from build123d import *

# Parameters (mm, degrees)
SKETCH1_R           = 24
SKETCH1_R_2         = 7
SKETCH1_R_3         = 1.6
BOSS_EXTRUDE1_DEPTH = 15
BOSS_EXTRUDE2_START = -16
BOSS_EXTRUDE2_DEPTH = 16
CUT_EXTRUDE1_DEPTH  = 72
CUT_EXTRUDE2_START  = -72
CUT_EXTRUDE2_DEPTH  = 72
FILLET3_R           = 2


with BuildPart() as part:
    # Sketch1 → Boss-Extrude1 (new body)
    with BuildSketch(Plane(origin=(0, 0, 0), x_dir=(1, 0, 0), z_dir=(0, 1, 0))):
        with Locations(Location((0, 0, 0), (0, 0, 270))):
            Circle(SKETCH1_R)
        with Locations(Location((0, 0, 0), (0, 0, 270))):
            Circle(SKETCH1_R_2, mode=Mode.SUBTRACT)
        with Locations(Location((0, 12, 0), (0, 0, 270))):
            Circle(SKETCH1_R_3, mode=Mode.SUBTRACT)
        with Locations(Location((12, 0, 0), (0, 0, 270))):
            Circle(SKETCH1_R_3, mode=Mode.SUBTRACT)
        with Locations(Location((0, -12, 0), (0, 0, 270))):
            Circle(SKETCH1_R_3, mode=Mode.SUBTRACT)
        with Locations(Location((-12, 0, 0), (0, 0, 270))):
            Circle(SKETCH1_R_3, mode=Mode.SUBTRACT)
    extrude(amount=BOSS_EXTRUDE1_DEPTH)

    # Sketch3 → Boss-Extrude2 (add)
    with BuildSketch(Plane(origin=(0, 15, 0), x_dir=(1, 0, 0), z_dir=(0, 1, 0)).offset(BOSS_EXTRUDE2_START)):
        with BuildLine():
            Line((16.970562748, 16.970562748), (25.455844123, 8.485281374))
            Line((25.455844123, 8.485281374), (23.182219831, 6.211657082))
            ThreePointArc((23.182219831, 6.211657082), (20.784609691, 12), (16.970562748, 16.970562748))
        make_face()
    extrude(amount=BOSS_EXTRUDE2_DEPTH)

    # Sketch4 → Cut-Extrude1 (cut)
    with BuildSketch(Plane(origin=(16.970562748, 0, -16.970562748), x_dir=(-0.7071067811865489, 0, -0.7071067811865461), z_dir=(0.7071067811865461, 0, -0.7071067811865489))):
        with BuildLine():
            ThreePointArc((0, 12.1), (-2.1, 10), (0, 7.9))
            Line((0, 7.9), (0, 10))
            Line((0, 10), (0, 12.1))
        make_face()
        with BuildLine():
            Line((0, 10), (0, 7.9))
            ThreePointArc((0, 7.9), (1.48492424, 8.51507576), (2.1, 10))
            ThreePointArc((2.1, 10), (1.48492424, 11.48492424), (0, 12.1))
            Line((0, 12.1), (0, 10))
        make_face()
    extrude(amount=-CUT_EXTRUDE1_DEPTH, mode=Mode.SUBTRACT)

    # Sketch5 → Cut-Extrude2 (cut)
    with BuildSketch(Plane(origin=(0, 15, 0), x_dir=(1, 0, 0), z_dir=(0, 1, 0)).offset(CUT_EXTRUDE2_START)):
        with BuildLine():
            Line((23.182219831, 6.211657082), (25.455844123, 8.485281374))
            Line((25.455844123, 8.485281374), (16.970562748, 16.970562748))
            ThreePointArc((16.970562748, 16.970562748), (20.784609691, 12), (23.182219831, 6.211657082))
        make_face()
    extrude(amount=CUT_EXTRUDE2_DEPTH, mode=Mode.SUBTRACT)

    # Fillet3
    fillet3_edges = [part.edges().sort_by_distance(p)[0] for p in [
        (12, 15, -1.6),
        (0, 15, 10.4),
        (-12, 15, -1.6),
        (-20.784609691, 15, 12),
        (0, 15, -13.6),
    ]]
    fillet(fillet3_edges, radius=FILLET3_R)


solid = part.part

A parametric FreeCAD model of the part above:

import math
import FreeCAD as App
import Part
import Sketcher
Q = App.Units.Quantity


def edges_at(feature, points):
    """Names of the edges that pass closest to the given points."""
    edges = feature.Shape.Edges
    near = lambda p: min(range(len(edges)), key=lambda i: edges[i].distToShape(Part.Vertex(*p))[0])
    return sorted({f"Edge{near(p) + 1}" for p in points})

doc = App.newDocument("Part")
params = doc.addObject("Spreadsheet::Sheet", "Params")
for row, (alias, value) in enumerate([
    ("sketch1_diameter", "48 mm"),
    ("sketch1_diameter2", "14 mm"),
    ("sketch1_diameter3", "3.2 mm"),
    ("pad1_length", "15 mm"),
    ("sketch2_radius", "24 mm"),
    ("sketch2_length", "12 mm"),
    ("pad2_length", "16 mm"),
    ("sketch3_radius", "2.1 mm"),
    ("pocket1_length", "72 mm"),
    ("sketch4_radius", "24 mm"),
    ("sketch4_length", "12 mm"),
    ("pocket2_length", "72 mm"),
    ("fillet_radius", "2 mm"),
], start=1):
    params.set(f"A{row}", alias)
    params.set(f"B{row}", "=" + value)
    params.setAlias(f"B{row}", alias)

body = doc.addObject("PartDesign::Body", "Body")

sketch1 = body.newObject("Sketcher::SketchObject", "Sketch")
sketch1.AttachmentSupport = (doc.getObject("XZ_Plane"), [""])
sketch1.MapMode = "FlatFace"
sketch1.addGeometry(Part.Circle(App.Vector(0, 0, 0), App.Vector(0, 0, 1), 24), False)
sketch1.addGeometry(Part.Circle(App.Vector(0, -12, 0), App.Vector(0, 0, 1), 1.6), False)
sketch1.addGeometry(Part.Circle(App.Vector(-12, 0, 0), App.Vector(0, 0, 1), 1.6), False)
sketch1.addGeometry(Part.Circle(App.Vector(12, 0, 0), App.Vector(0, 0, 1), 1.6), False)
sketch1.addGeometry(Part.Circle(App.Vector(0, 0, 0), App.Vector(0, 0, 1), 7), False)
sketch1.addGeometry(Part.Circle(App.Vector(0, 12, 0), App.Vector(0, 0, 1), 1.6), False)
sketch1.addConstraint(Sketcher.Constraint("Coincident", 0, 3, -1, 1))
sketch1.addConstraint(Sketcher.Constraint("Coincident", 4, 3, -1, 1))
sketch1.addConstraint(Sketcher.Constraint("Equal", 1, 2))
sketch1.addConstraint(Sketcher.Constraint("Equal", 2, 3))
sketch1.addConstraint(Sketcher.Constraint("Equal", 3, 5))
sketch1.addConstraint(Sketcher.Constraint("Symmetric", 2, 3, 3, 3, -1, 1))
sketch1.addConstraint(Sketcher.Constraint("Symmetric", 1, 3, 5, 3, -1, 1))
sketch1.addConstraint(Sketcher.Constraint("PointOnObject", 1, 3, -2))
sketch1.addConstraint(Sketcher.Constraint("PointOnObject", 2, 3, -1))
sketch1.addConstraint(Sketcher.Constraint("Diameter", 0, Q("48 mm")))
sketch1.addConstraint(Sketcher.Constraint("Diameter", 4, Q("14 mm")))
sketch1.addConstraint(Sketcher.Constraint("Diameter", 1, Q("3.2 mm")))
sketch1.addConstraint(Sketcher.Constraint("DistanceY", 1, 3, -1, 1, Q("12 mm")))
sketch1.addConstraint(Sketcher.Constraint("DistanceX", 2, 3, -1, 1, Q("12 mm")))
sketch1.setExpression("Constraints[9]", "Params.sketch1_diameter")
sketch1.setExpression("Constraints[10]", "Params.sketch1_diameter2")
sketch1.setExpression("Constraints[11]", "Params.sketch1_diameter3")
pad1 = body.newObject("PartDesign::Pad", "Pad")
pad1.Profile = sketch1
pad1.setExpression("Length", "Params.pad1_length")
pad1.Reversed = True

sketch2 = body.newObject("Sketcher::SketchObject", "Sketch001")
sketch2.AttachmentSupport = (doc.getObject("XZ_Plane"), [""])
sketch2.MapMode = "FlatFace"
sketch2.AttachmentOffset = App.Placement(App.Vector(0, 0, 1), App.Rotation())
sketch2.addGeometry(Part.LineSegment(App.Vector(25.455844, -8.485281, 0), App.Vector(16.970563, -16.970563, 0)), False)
sketch2.addGeometry(Part.ArcOfCircle(Part.Circle(App.Vector(0, 0, 0), App.Vector(0, 0, 1), 24), math.radians(-45), math.radians(-15)), False)
sketch2.addGeometry(Part.LineSegment(App.Vector(23.18222, -6.211657, 0), App.Vector(25.455844, -8.485281, 0)), False)
sketch2.addConstraint(Sketcher.Constraint("Tangent", 0, 2, 1, 1))
sketch2.addConstraint(Sketcher.Constraint("Coincident", 1, 2, 2, 1))
sketch2.addConstraint(Sketcher.Constraint("Coincident", 2, 2, 0, 1))
sketch2.addConstraint(Sketcher.Constraint("Coincident", 1, 3, -1, 1))
sketch2.addConstraint(Sketcher.Constraint("Perpendicular", 0, 2))
sketch2.addConstraint(Sketcher.Constraint("Radius", 1, Q("24 mm")))
sketch2.addConstraint(Sketcher.Constraint("Angle", 0, Q("-135 deg")))
sketch2.addConstraint(Sketcher.Constraint("Distance", 0, Q("12 mm")))
sketch2.setExpression("Constraints[5]", "Params.sketch2_radius")
sketch2.setExpression("Constraints[7]", "Params.sketch2_length")
pad2 = body.newObject("PartDesign::Pad", "Pad001")
pad2.Profile = sketch2
pad2.setExpression("Length", "Params.pad2_length")
pad2.Reversed = True

sketch3 = body.newObject("Sketcher::SketchObject", "Sketch002")
sketch3.Placement = App.Placement(App.Vector(16.970563, 0, -16.970563), App.Rotation(App.Vector(-0.707106781, 0, -0.707106781), App.Vector(0, 0.999999999, 0), App.Vector(0.707106781, 0, -0.707106781), "ZXY"))
sketch3.addGeometry(Part.ArcOfCircle(Part.Circle(App.Vector(0, 10, 0), App.Vector(0, 0, 1), 2.1), math.radians(90), math.radians(270)), False)
sketch3.addGeometry(Part.ArcOfCircle(Part.Circle(App.Vector(0, 10, 0), App.Vector(0, 0, 1), 2.1), math.radians(-90), math.radians(0)), False)
sketch3.addGeometry(Part.ArcOfCircle(Part.Circle(App.Vector(0, 10, 0), App.Vector(0, 0, 1), 2.1), math.radians(0), math.radians(90)), False)
sketch3.addConstraint(Sketcher.Constraint("Tangent", 0, 2, 1, 1))
sketch3.addConstraint(Sketcher.Constraint("Tangent", 1, 2, 2, 1))
sketch3.addConstraint(Sketcher.Constraint("Tangent", 2, 2, 0, 1))
sketch3.addConstraint(Sketcher.Constraint("PointOnObject", 0, 3, -2))
sketch3.addConstraint(Sketcher.Constraint("PointOnObject", 0, 2, -2))
sketch3.addConstraint(Sketcher.Constraint("PointOnObject", 2, 2, -2))
sketch3.addConstraint(Sketcher.Constraint("Horizontal", 2, 3, 1, 2))
sketch3.addConstraint(Sketcher.Constraint("Radius", 0, Q("2.1 mm")))
sketch3.addConstraint(Sketcher.Constraint("DistanceY", -1, 1, 0, 3, Q("10 mm")))
sketch3.setExpression("Constraints[7]", "Params.sketch3_radius")
pocket1 = body.newObject("PartDesign::Pocket", "Pocket")
pocket1.Profile = sketch3
pocket1.setExpression("Length", "Params.pocket1_length")

sketch4 = body.newObject("Sketcher::SketchObject", "Sketch003")
sketch4.AttachmentSupport = (doc.getObject("XZ_Plane"), [""])
sketch4.MapMode = "FlatFace"
sketch4.AttachmentOffset = App.Placement(App.Vector(0, 0, 57), App.Rotation())
sketch4.addGeometry(Part.LineSegment(App.Vector(23.18222, -6.211657, 0), App.Vector(25.455844, -8.485281, 0)), False)
sketch4.addGeometry(Part.LineSegment(App.Vector(25.455844, -8.485281, 0), App.Vector(16.970563, -16.970563, 0)), False)
sketch4.addGeometry(Part.ArcOfCircle(Part.Circle(App.Vector(0, 0, 0), App.Vector(0, 0, 1), 24), math.radians(-45), math.radians(-15)), False)
sketch4.addConstraint(Sketcher.Constraint("Coincident", 0, 2, 1, 1))
sketch4.addConstraint(Sketcher.Constraint("Tangent", 1, 2, 2, 1))
sketch4.addConstraint(Sketcher.Constraint("Coincident", 2, 2, 0, 1))
sketch4.addConstraint(Sketcher.Constraint("Coincident", 2, 3, -1, 1))
sketch4.addConstraint(Sketcher.Constraint("Perpendicular", 0, 1))
sketch4.addConstraint(Sketcher.Constraint("Radius", 2, Q("24 mm")))
sketch4.addConstraint(Sketcher.Constraint("Angle", 0, Q("-45 deg")))
sketch4.addConstraint(Sketcher.Constraint("Distance", 1, Q("12 mm")))
sketch4.setExpression("Constraints[5]", "Params.sketch4_radius")
sketch4.setExpression("Constraints[7]", "Params.sketch4_length")
pocket2 = body.newObject("PartDesign::Pocket", "Pocket001")
pocket2.Profile = sketch4
pocket2.setExpression("Length", "Params.pocket2_length")
doc.recompute()

fillet = body.newObject("PartDesign::Fillet", "Fillet")
fillet.Base = (pocket2, edges_at(pocket2, [
    (12, 15, -1.6),
    (0, 15, 10.4),
    (-12, 15, -1.6),
    (-20.785, 15, 12),
    (0, 15, -13.6),
]))
fillet.setExpression("Radius", "Params.fillet_radius")

doc.recompute()
